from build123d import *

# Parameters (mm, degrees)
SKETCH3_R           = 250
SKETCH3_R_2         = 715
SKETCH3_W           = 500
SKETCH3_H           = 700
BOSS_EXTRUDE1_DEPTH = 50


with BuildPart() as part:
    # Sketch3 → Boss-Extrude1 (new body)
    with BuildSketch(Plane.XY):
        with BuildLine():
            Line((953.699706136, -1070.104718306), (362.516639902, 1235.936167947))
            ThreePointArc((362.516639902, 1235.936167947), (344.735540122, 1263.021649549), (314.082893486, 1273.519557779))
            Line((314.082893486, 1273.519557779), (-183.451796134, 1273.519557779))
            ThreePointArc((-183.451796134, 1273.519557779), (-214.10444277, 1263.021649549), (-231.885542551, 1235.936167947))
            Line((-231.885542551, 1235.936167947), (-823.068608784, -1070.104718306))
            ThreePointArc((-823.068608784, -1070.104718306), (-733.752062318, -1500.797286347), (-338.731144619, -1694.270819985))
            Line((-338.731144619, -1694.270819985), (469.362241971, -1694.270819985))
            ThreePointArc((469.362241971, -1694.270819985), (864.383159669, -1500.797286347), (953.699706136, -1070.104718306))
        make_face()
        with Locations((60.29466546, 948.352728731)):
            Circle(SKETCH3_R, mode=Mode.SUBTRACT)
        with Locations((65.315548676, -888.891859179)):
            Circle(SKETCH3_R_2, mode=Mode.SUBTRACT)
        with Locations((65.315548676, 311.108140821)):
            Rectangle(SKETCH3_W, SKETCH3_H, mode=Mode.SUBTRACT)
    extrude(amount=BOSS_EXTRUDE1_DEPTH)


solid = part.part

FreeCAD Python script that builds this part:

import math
import FreeCAD as App
import Part
import Sketcher


def add_polygon(sketch, points):
    """Adds a closed chain of lines whose ends are joined by coincident constraints."""
    first, n = sketch.GeometryCount, len(points)
    for a, b in zip(points, points[1:] + points[:1]):
        sketch.addGeometry(Part.LineSegment(App.Vector(*a, 0), App.Vector(*b, 0)), False)
    for i in range(n):
        sketch.addConstraint(Sketcher.Constraint("Coincident", first + i, 2, first + (i + 1) % n, 1))

doc = App.newDocument("Part")
params = doc.addObject("Spreadsheet::Sheet", "Params")
for row, (alias, value) in enumerate([
    ("sketch1_diameter", "1430 mm"),
    ("sketch1_diameter2", "500 mm"),
    ("sketch1_radius", "50 mm"),
    ("sketch1_radius2", "500 mm"),
    ("sketch1_width", "500 mm"),
    ("pad1_length", "50 mm"),
], start=1):
    params.set(f"A{row}", alias)
    params.set(f"B{row}", "=" + value)
    params.setAlias(f"B{row}", alias)

body = doc.addObject("PartDesign::Body", "Body")

sketch1 = body.newObject("Sketcher::SketchObject", "Sketch")
sketch1.AttachmentSupport = (doc.getObject("XY_Plane"), [""])
sketch1.MapMode = "FlatFace"
sketch1.addGeometry(Part.LineSegment(App.Vector(954, -1070, 0), App.Vector(363, 1236, 0)), False)
sketch1.addGeometry(Part.ArcOfCircle(Part.Circle(App.Vector(314, 1224, 0), App.Vector(0, 0, 1), 50), math.radians(14), math.radians(90)), False)
sketch1.addGeometry(Part.LineSegment(App.Vector(314, 1274, 0), App.Vector(-183, 1274, 0)), False)
sketch1.addGeometry(Part.ArcOfCircle(Part.Circle(App.Vector(-183, 1224, 0), App.Vector(0, 0, 1), 50), math.radians(90), math.radians(166)), False)
sketch1.addGeometry(Part.LineSegment(App.Vector(-232, 1236, 0), App.Vector(-823, -1070, 0)), False)
sketch1.addGeometry(Part.ArcOfCircle(Part.Circle(App.Vector(-339, -1194, 0), App.Vector(0, 0, 1), 500), math.radians(166), math.radians(270)), False)
sketch1.addGeometry(Part.LineSegment(App.Vector(-339, -1694, 0), App.Vector(469, -1694, 0)), False)
sketch1.addGeometry(Part.ArcOfCircle(Part.Circle(App.Vector(469, -1194, 0), App.Vector(0, 0, 1), 500), math.radians(-90), math.radians(14)), False)
sketch1.addGeometry(Part.Circle(App.Vector(65, -889, 0), App.Vector(0, 0, 1), 715), False)
sketch1.addGeometry(Part.Circle(App.Vector(60, 948, 0), App.Vector(0, 0, 1), 250), False)
add_polygon(sketch1, [(315, -39), (-185, -39), (-185, 661), (315, 661)])
sketch1.addConstraint([
    Sketcher.Constraint("Tangent", 0, 2, 1, 1),
    Sketcher.Constraint("Tangent", 1, 2, 2, 1),
    Sketcher.Constraint("Tangent", 2, 2, 3, 1),
    Sketcher.Constraint("Tangent", 3, 2, 4, 1),
    Sketcher.Constraint("Tangent", 4, 2, 5, 1),
    Sketcher.Constraint("Tangent", 5, 2, 6, 1),
    Sketcher.Constraint("Tangent", 6, 2, 7, 1),
    Sketcher.Constraint("Tangent", 7, 2, 0, 1),
    Sketcher.Constraint("Horizontal", 2),
    Sketcher.Constraint("Horizontal", 6),
    Sketcher.Constraint("Horizontal", 10),
    Sketcher.Constraint("Vertical", 11),
    Sketcher.Constraint("Horizontal", 12),
    Sketcher.Constraint("Vertical", 13),
    Sketcher.Constraint("Equal", 1, 3),
    Sketcher.Constraint("Equal", 5, 7),
    Sketcher.Constraint("Equal", 0, 4),
    Sketcher.Constraint("Diameter", 8, 1430.0),
    Sketcher.Constraint("Diameter", 9, 500.0),
    Sketcher.Constraint("Radius", 1, 50.0),
    Sketcher.Constraint("Radius", 5, 500.0),
    Sketcher.Constraint("DistanceX", 10, 2, 10, 1, 500.0),
    Sketcher.Constraint("DistanceY", 11, 1, 11, 2, 700.0),
    Sketcher.Constraint("DistanceX", 10, 2, 8, 3, 250.0),
    Sketcher.Constraint("DistanceY", 8, 3, 10, 2, 850.0),
    Sketcher.Constraint("DistanceX", 2, 2, 2, 1, 497.53469),
    Sketcher.Constraint("DistanceY", 5, 3, 4, 2, 124.166102),
    Sketcher.Constraint("DistanceX", 6, 1, 6, 2, 808.093387),
    Sketcher.Constraint("DistanceY", 5, 3, -1, 1, 1194.27082),
    Sketcher.Constraint("DistanceX", -1, 1, 7, 3, 469.362242),
    Sketcher.Constraint("DistanceX", -1, 1, 8, 3, 65.315549),
    Sketcher.Constraint("DistanceY", 8, 3, -1, 1, 888.891859),
    Sketcher.Constraint("DistanceY", -1, 1, 9, 3, 948.352729),
    Sketcher.Constraint("DistanceX", 3, 3, 9, 3, 243.746462),
])
sketch1.setExpression("Constraints[21]", "Params.sketch1_diameter")
sketch1.setExpression("Constraints[22]", "Params.sketch1_diameter2")
sketch1.setExpression("Constraints[23]", "Params.sketch1_radius")
sketch1.setExpression("Constraints[24]", "Params.sketch1_radius2")
sketch1.setExpression("Constraints[25]", "Params.sketch1_width")
pad1 = body.newObject("PartDesign::Pad", "Pad")
pad1.Profile = sketch1
pad1.setExpression("Length", "Params.pad1_length")

doc.recompute()
